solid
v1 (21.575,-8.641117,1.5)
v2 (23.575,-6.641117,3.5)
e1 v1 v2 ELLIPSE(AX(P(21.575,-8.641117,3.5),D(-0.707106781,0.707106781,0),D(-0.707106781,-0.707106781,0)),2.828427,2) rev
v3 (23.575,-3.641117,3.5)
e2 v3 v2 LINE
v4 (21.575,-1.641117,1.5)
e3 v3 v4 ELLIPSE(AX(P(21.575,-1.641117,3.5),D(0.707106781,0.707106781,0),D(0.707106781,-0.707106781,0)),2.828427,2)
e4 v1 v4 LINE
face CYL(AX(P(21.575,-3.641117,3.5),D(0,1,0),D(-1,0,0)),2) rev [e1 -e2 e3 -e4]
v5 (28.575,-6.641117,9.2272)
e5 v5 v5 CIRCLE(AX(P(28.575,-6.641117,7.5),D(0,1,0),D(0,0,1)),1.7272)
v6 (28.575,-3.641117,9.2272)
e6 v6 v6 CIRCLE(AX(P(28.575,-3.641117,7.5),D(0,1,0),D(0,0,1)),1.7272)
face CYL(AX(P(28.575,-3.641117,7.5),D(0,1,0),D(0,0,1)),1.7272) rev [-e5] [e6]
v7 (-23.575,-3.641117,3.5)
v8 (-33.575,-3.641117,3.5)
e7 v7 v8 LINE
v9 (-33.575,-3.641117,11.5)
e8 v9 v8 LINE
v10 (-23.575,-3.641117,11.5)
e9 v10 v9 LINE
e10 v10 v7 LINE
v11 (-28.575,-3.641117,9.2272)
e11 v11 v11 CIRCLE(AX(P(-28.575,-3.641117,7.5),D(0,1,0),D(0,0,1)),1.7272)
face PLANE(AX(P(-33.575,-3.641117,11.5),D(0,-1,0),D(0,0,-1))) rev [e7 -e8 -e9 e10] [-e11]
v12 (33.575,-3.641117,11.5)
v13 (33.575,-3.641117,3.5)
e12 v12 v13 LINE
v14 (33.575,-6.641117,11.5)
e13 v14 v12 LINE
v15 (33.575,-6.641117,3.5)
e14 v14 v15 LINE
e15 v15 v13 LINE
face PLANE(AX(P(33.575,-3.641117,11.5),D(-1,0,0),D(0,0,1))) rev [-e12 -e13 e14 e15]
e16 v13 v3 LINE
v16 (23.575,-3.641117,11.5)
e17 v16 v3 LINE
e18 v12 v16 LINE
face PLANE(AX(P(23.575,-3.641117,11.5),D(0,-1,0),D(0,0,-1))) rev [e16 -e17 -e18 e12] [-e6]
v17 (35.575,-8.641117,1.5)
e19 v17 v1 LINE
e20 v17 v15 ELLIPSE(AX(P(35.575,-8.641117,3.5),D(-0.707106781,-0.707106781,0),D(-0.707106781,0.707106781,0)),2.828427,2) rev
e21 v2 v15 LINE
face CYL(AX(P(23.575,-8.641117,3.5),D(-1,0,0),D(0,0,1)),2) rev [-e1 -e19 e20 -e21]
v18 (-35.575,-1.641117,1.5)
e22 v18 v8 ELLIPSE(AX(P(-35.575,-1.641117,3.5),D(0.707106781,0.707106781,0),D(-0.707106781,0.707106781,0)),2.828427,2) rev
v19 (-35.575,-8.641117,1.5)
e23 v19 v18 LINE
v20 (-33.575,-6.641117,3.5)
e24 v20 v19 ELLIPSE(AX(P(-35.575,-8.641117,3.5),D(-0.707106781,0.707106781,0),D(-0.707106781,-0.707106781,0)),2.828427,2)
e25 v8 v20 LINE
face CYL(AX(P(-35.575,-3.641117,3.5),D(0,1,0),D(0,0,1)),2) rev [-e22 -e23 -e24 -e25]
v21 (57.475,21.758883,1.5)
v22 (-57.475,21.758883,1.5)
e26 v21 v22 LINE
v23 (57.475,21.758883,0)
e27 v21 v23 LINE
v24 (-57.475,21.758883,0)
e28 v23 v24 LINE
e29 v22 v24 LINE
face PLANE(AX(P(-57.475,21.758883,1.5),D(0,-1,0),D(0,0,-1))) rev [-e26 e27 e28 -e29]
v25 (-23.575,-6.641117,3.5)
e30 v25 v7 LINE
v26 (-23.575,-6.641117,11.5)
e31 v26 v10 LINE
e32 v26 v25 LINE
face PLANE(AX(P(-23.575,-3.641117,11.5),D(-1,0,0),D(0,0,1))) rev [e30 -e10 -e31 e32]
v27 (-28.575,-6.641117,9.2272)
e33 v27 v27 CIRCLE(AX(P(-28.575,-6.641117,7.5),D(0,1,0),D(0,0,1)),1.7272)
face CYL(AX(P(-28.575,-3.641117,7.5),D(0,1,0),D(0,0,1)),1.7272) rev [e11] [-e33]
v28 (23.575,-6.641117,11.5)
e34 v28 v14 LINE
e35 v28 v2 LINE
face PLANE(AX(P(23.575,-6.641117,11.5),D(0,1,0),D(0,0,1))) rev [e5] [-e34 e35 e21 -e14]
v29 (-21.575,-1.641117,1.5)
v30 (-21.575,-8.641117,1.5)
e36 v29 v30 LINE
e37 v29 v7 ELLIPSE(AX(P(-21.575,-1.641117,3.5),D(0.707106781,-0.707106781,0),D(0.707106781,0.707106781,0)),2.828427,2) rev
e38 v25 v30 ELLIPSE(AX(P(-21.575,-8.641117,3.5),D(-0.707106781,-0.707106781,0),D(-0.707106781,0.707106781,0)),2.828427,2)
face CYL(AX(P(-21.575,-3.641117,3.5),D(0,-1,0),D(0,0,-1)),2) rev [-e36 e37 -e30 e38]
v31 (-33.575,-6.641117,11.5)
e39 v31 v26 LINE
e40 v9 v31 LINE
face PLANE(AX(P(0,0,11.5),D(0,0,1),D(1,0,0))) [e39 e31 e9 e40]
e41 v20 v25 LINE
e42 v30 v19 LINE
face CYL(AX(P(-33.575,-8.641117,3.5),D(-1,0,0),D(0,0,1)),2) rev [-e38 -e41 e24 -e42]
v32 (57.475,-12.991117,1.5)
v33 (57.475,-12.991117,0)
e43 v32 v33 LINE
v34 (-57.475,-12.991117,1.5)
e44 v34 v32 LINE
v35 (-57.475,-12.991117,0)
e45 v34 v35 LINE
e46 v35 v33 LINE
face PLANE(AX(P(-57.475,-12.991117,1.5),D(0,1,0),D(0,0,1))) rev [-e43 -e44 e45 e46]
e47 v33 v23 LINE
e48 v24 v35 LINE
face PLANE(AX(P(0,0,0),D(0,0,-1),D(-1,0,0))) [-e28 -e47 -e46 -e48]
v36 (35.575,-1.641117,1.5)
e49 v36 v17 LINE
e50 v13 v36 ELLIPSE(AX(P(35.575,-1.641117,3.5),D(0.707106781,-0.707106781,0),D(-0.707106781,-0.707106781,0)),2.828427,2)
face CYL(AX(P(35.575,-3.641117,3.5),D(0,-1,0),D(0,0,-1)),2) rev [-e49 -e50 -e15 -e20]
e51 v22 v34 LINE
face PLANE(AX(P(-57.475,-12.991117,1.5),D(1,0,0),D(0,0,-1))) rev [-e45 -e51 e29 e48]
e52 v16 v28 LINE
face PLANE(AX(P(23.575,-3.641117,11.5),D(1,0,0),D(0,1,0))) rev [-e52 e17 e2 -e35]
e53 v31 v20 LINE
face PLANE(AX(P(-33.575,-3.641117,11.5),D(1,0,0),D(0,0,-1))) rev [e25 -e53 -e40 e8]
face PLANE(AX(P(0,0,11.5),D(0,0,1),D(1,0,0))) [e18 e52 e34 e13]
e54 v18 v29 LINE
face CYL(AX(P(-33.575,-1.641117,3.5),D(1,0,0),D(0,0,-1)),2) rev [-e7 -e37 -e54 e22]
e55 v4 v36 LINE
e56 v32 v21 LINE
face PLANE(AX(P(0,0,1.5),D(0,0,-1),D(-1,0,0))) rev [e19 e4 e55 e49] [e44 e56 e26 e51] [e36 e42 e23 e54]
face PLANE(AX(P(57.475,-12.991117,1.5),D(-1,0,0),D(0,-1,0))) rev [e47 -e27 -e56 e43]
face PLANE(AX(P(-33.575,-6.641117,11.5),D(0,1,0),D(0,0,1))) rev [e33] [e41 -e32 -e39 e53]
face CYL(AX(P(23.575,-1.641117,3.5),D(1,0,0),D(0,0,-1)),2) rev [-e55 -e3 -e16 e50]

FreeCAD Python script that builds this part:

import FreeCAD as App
import Part
import Sketcher
from FreeCAD import Vector
Q = App.Units.Quantity


def edges_at(feature, points):
    """Names of the edges that pass closest to the given points."""
    edges = feature.Shape.Edges
    near = lambda p: min(range(len(edges)), key=lambda i: edges[i].distToShape(Part.Vertex(*p))[0])
    return sorted({f"Edge{near(p) + 1}" for p in points})

doc = App.newDocument("Part")
params = doc.addObject("Spreadsheet::Sheet", "Params")
for row, (alias, value) in enumerate([
    ("sketch1_width", "114.95 mm"),
    ("sketch1_height", "34.75 mm"),
    ("pad1_length", "1.5 mm"),
    ("sketch2_width", "10 mm"),
    ("sketch2_height", "3 mm"),
    ("pad2_length", "10 mm"),
    ("fillet_radius", "2 mm"),
    ("hole_diameter", "3.4544 mm"),
], start=1):
    params.set(f"A{row}", alias)
    params.set(f"B{row}", "=" + value)
    params.setAlias(f"B{row}", alias)

body = doc.addObject("PartDesign::Body", "Body")

# Sketch on XY plane
sketch1 = body.newObject("Sketcher::SketchObject", "Sketch")
sketch1.AttachmentSupport = (doc.getObject("XY_Plane"), [""])
sketch1.MapMode = "FlatFace"
sketch1.addGeometry([
    Part.LineSegment(Vector(-57.475, 21.758883, 0), Vector(-57.475, -12.991117, 0)),
    Part.LineSegment(Vector(-57.475, -12.991117, 0), Vector(57.475, -12.991117, 0)),
    Part.LineSegment(Vector(57.475, -12.991117, 0), Vector(57.475, 21.758883, 0)),
    Part.LineSegment(Vector(57.475, 21.758883, 0), Vector(-57.475, 21.758883, 0)),
], False)
sketch1.addConstraint([
    Sketcher.Constraint("Coincident", 0, 2, 1, 1),
    Sketcher.Constraint("Coincident", 1, 2, 2, 1),
    Sketcher.Constraint("Coincident", 2, 2, 3, 1),
    Sketcher.Constraint("Coincident", 3, 2, 0, 1),
    Sketcher.Constraint("Vertical", 0),
    Sketcher.Constraint("Horizontal", 1),
    Sketcher.Constraint("Vertical", 2),
    Sketcher.Constraint("Horizontal", 3),
    Sketcher.Constraint("DistanceX", 1, 1, 1, 2, Q("114.95 mm")),
    Sketcher.Constraint("DistanceY", 0, 2, 0, 1, Q("34.75 mm")),
    Sketcher.Constraint("DistanceX", 0, 2, -1, 1, Q("57.475 mm")),
    Sketcher.Constraint("DistanceY", 0, 2, -1, 1, Q("12.991117 mm")),
])
sketch1.setExpression("Constraints[8]", "Params.sketch1_width")
sketch1.setExpression("Constraints[9]", "Params.sketch1_height")
pad1 = body.newObject("PartDesign::Pad", "Pad")
pad1.Profile = sketch1
pad1.setExpression("Length", "Params.pad1_length")

# Sketch on XY plane
sketch2 = body.newObject("Sketcher::SketchObject", "Sketch001")
sketch2.AttachmentSupport = (doc.getObject("XY_Plane"), [""])
sketch2.MapMode = "FlatFace"
sketch2.AttachmentOffset = App.Placement(Vector(0, 0, 1.5), App.Rotation())
sketch2.addGeometry([
    Part.LineSegment(Vector(23.575, -3.641117, 0), Vector(23.575, -6.641117, 0)),  # 0
    Part.LineSegment(Vector(23.575, -6.641117, 0), Vector(33.575, -6.641117, 0)),  # 1
    Part.LineSegment(Vector(33.575, -6.641117, 0), Vector(33.575, -3.641117, 0)),  # 2
    Part.LineSegment(Vector(33.575, -3.641117, 0), Vector(23.575, -3.641117, 0)),  # 3
    Part.LineSegment(Vector(-33.575, -3.641117, 0), Vector(-33.575, -6.641117, 0)),  # 4
    Part.LineSegment(Vector(-33.575, -6.641117, 0), Vector(-23.575, -6.641117, 0)),  # 5
    Part.LineSegment(Vector(-23.575, -6.641117, 0), Vector(-23.575, -3.641117, 0)),  # 6
    Part.LineSegment(Vector(-23.575, -3.641117, 0), Vector(-33.575, -3.641117, 0)),  # 7
], False)
sketch2.addConstraint([
    Sketcher.Constraint("Coincident", 0, 2, 1, 1),
    Sketcher.Constraint("Coincident", 1, 2, 2, 1),
    Sketcher.Constraint("Coincident", 2, 2, 3, 1),
    Sketcher.Constraint("Coincident", 3, 2, 0, 1),
    Sketcher.Constraint("Coincident", 4, 2, 5, 1),
    Sketcher.Constraint("Coincident", 5, 2, 6, 1),
    Sketcher.Constraint("Coincident", 6, 2, 7, 1),
    Sketcher.Constraint("Coincident", 7, 2, 4, 1),
    Sketcher.Constraint("Vertical", 0),
    Sketcher.Constraint("Horizontal", 1),
    Sketcher.Constraint("Vertical", 2),
    Sketcher.Constraint("Horizontal", 3),
    Sketcher.Constraint("Vertical", 4),
    Sketcher.Constraint("Horizontal", 5),
    Sketcher.Constraint("Vertical", 6),
    Sketcher.Constraint("Horizontal", 7),
    Sketcher.Constraint("Symmetric", 1, 2, 4, 2, -2),
    Sketcher.Constraint("Symmetric", 3, 2, 6, 2, -2),
    Sketcher.Constraint("DistanceX", 1, 1, 1, 2, Q("10 mm")),
    Sketcher.Constraint("DistanceY", 0, 2, 0, 1, Q("3 mm")),
    Sketcher.Constraint("DistanceX", 4, 2, 0, 2, Q("57.15 mm")),
    Sketcher.Constraint("DistanceY", 0, 2, -1, 1, Q("6.641117 mm")),
])
sketch2.setExpression("Constraints[18]", "Params.sketch2_width")
sketch2.setExpression("Constraints[19]", "Params.sketch2_height")
pad2 = body.newObject("PartDesign::Pad", "Pad001")
pad2.Profile = sketch2
pad2.setExpression("Length", "Params.pad2_length")
doc.recompute()

fillet = body.newObject("PartDesign::Fillet", "Fillet")
fillet.Base = (pad2, edges_at(pad2, [
    (-33.575, -5.141, 1.5),
    (-28.575, -6.641, 1.5),
    (-23.575, -5.141, 1.5),
    (-28.575, -3.641, 1.5),
    (23.575, -5.141, 1.5),
    (28.575, -6.641, 1.5),
    (33.575, -5.141, 1.5),
    (28.575, -3.641, 1.5),
]))
fillet.setExpression("Radius", "Params.fillet_radius")

# Sketch on XZ plane
sketch3 = body.newObject("Sketcher::SketchObject", "Sketch002")
sketch3.AttachmentSupport = (doc.getObject("XZ_Plane"), [""])
sketch3.MapMode = "FlatFace"
sketch3.AttachmentOffset = App.Placement(Vector(0, 0, 3.641117), App.Rotation())
sketch3.addGeometry([
    Part.Circle(Vector(28.575, 7.5, 0), Vector(0, 0, 1), 1.7272),
    Part.Circle(Vector(-28.575, 7.5, 0), Vector(0, 0, 1), 1.7272),
], False)
sketch3.addConstraint([
    Sketcher.Constraint("Equal", 0, 1),
    Sketcher.Constraint("Symmetric", 0, 3, 1, 3, -2),
    Sketcher.Constraint("Diameter", 0, Q("3.4544 mm")),
    Sketcher.Constraint("DistanceY", -1, 1, 0, 3, Q("7.5 mm")),
    Sketcher.Constraint("DistanceX", 1, 3, 0, 3, Q("57.15 mm")),
])
doc.recompute()
hole = body.newObject("PartDesign::Hole", "Hole")
hole.Profile = sketch3
hole.ThreadType = "None"
hole.setExpression("Diameter", "Params.hole_diameter")
hole.DepthType = "ThroughAll"
hole.Reversed = True

doc.recompute()
